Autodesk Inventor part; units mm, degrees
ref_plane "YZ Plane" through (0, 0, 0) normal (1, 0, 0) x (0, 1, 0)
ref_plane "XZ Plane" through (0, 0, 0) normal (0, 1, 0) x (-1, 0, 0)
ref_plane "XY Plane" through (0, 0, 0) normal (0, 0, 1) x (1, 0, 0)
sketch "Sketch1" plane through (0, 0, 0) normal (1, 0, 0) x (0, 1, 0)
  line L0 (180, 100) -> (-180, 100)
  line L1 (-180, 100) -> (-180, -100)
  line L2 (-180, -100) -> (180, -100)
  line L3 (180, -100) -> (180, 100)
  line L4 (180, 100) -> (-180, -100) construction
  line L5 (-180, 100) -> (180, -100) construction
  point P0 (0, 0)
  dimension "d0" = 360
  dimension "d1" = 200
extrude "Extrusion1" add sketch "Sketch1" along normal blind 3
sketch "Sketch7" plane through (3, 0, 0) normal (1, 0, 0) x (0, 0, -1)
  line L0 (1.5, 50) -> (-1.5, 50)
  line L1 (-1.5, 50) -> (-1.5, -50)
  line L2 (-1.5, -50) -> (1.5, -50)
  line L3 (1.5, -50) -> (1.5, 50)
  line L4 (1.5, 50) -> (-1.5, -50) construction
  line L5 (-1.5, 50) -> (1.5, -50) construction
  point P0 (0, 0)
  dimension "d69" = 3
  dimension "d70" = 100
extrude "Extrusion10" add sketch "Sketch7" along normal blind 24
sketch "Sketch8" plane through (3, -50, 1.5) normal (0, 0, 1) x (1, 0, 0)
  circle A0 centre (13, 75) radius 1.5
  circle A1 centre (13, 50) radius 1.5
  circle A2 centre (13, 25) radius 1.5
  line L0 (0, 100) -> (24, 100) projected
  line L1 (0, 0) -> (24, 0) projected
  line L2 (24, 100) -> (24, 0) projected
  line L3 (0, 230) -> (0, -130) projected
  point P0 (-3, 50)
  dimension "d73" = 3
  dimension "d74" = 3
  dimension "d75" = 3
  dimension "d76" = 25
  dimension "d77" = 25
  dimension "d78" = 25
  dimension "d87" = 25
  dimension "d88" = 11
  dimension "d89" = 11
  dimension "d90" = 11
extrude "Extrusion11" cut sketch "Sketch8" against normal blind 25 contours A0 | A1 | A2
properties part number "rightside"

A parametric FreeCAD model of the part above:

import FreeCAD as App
import Part
import Sketcher
from FreeCAD import Vector
Q = App.Units.Quantity

doc = App.newDocument("Part")
body = doc.addObject("PartDesign::Body", "Body")

# Sketch on YZ plane
sketch1 = body.newObject("Sketcher::SketchObject", "Sketch")
sketch1.AttachmentSupport = (doc.getObject("YZ_Plane"), [""])
sketch1.MapMode = "FlatFace"
sketch1.addGeometry([
    Part.LineSegment(Vector(180, -100, 0), Vector(180, 100, 0)),
    Part.LineSegment(Vector(180, 100, 0), Vector(-180, 100, 0)),
    Part.LineSegment(Vector(-180, 100, 0), Vector(-180, -100, 0)),
    Part.LineSegment(Vector(-180, -100, 0), Vector(180, -100, 0)),
], False)
sketch1.addConstraint([
    Sketcher.Constraint("Coincident", 0, 2, 1, 1),
    Sketcher.Constraint("Coincident", 1, 2, 2, 1),
    Sketcher.Constraint("Coincident", 2, 2, 3, 1),
    Sketcher.Constraint("Coincident", 3, 2, 0, 1),
    Sketcher.Constraint("Vertical", 0),
    Sketcher.Constraint("Horizontal", 1),
    Sketcher.Constraint("Vertical", 2),
    Sketcher.Constraint("Horizontal", 3),
    Sketcher.Constraint("Symmetric", 0, 2, 2, 2, -1, 1),
    Sketcher.Constraint("DistanceX", 1, 2, 1, 1, Q("360 mm")),
    Sketcher.Constraint("DistanceY", 0, 1, 0, 2, Q("200 mm")),
])
pad1 = body.newObject("PartDesign::Pad", "Pad")
pad1.Profile = sketch1
pad1.Length = 3

# Sketch on YZ plane
sketch2 = body.newObject("Sketcher::SketchObject", "Sketch001")
sketch2.AttachmentSupport = (doc.getObject("YZ_Plane"), [""])
sketch2.MapMode = "FlatFace"
sketch2.AttachmentOffset = App.Placement(Vector(0, 0, 3), App.Rotation())
sketch2.addGeometry([
    Part.LineSegment(Vector(-50, -1.5, 0), Vector(50, -1.5, 0)),
    Part.LineSegment(Vector(50, -1.5, 0), Vector(50, 1.5, 0)),
    Part.LineSegment(Vector(50, 1.5, 0), Vector(-50, 1.5, 0)),
    Part.LineSegment(Vector(-50, 1.5, 0), Vector(-50, -1.5, 0)),
], False)
sketch2.addConstraint([
    Sketcher.Constraint("Coincident", 0, 2, 1, 1),
    Sketcher.Constraint("Coincident", 1, 2, 2, 1),
    Sketcher.Constraint("Coincident", 2, 2, 3, 1),
    Sketcher.Constraint("Coincident", 3, 2, 0, 1),
    Sketcher.Constraint("Horizontal", 0),
    Sketcher.Constraint("Vertical", 1),
    Sketcher.Constraint("Horizontal", 2),
    Sketcher.Constraint("Vertical", 3),
    Sketcher.Constraint("Symmetric", 0, 2, 2, 2, -1, 1),
    Sketcher.Constraint("DistanceX", 0, 1, 0, 2, Q("100 mm")),
    Sketcher.Constraint("DistanceY", 1, 1, 1, 2, Q("3 mm")),
])
pad2 = body.newObject("PartDesign::Pad", "Pad001")
pad2.Profile = sketch2
pad2.Length = 24

# Sketch on XY plane
sketch3 = body.newObject("Sketcher::SketchObject", "Sketch002")
sketch3.AttachmentSupport = (doc.getObject("XY_Plane"), [""])
sketch3.MapMode = "FlatFace"
sketch3.AttachmentOffset = App.Placement(Vector(0, 0, 1.5), App.Rotation())
sketch3.addGeometry([
    Part.Circle(Vector(16, 25, 0), Vector(0, 0, 1), 1.5),
    Part.Circle(Vector(16, 0, 0), Vector(0, 0, 1), 1.5),
    Part.Circle(Vector(16, -25, 0), Vector(0, 0, 1), 1.5),
], False)
sketch3.addConstraint([
    Sketcher.Constraint("Equal", 0, 1),
    Sketcher.Constraint("Equal", 1, 2),
    Sketcher.Constraint("Symmetric", 0, 3, 2, 3, -1),
    Sketcher.Constraint("PointOnObject", 1, 3, -1),
    Sketcher.Constraint("Vertical", 0, 3, 1, 3),
    Sketcher.Constraint("Diameter", 0, Q("3 mm")),
    Sketcher.Constraint("DistanceY", -1, 1, 0, 3, Q("25 mm")),
    Sketcher.Constraint("DistanceX", -1, 1, 0, 3, Q("16 mm")),
])
pocket1 = body.newObject("PartDesign::Pocket", "Pocket")
pocket1.Profile = sketch3
pocket1.Length = 25

doc.recompute()
